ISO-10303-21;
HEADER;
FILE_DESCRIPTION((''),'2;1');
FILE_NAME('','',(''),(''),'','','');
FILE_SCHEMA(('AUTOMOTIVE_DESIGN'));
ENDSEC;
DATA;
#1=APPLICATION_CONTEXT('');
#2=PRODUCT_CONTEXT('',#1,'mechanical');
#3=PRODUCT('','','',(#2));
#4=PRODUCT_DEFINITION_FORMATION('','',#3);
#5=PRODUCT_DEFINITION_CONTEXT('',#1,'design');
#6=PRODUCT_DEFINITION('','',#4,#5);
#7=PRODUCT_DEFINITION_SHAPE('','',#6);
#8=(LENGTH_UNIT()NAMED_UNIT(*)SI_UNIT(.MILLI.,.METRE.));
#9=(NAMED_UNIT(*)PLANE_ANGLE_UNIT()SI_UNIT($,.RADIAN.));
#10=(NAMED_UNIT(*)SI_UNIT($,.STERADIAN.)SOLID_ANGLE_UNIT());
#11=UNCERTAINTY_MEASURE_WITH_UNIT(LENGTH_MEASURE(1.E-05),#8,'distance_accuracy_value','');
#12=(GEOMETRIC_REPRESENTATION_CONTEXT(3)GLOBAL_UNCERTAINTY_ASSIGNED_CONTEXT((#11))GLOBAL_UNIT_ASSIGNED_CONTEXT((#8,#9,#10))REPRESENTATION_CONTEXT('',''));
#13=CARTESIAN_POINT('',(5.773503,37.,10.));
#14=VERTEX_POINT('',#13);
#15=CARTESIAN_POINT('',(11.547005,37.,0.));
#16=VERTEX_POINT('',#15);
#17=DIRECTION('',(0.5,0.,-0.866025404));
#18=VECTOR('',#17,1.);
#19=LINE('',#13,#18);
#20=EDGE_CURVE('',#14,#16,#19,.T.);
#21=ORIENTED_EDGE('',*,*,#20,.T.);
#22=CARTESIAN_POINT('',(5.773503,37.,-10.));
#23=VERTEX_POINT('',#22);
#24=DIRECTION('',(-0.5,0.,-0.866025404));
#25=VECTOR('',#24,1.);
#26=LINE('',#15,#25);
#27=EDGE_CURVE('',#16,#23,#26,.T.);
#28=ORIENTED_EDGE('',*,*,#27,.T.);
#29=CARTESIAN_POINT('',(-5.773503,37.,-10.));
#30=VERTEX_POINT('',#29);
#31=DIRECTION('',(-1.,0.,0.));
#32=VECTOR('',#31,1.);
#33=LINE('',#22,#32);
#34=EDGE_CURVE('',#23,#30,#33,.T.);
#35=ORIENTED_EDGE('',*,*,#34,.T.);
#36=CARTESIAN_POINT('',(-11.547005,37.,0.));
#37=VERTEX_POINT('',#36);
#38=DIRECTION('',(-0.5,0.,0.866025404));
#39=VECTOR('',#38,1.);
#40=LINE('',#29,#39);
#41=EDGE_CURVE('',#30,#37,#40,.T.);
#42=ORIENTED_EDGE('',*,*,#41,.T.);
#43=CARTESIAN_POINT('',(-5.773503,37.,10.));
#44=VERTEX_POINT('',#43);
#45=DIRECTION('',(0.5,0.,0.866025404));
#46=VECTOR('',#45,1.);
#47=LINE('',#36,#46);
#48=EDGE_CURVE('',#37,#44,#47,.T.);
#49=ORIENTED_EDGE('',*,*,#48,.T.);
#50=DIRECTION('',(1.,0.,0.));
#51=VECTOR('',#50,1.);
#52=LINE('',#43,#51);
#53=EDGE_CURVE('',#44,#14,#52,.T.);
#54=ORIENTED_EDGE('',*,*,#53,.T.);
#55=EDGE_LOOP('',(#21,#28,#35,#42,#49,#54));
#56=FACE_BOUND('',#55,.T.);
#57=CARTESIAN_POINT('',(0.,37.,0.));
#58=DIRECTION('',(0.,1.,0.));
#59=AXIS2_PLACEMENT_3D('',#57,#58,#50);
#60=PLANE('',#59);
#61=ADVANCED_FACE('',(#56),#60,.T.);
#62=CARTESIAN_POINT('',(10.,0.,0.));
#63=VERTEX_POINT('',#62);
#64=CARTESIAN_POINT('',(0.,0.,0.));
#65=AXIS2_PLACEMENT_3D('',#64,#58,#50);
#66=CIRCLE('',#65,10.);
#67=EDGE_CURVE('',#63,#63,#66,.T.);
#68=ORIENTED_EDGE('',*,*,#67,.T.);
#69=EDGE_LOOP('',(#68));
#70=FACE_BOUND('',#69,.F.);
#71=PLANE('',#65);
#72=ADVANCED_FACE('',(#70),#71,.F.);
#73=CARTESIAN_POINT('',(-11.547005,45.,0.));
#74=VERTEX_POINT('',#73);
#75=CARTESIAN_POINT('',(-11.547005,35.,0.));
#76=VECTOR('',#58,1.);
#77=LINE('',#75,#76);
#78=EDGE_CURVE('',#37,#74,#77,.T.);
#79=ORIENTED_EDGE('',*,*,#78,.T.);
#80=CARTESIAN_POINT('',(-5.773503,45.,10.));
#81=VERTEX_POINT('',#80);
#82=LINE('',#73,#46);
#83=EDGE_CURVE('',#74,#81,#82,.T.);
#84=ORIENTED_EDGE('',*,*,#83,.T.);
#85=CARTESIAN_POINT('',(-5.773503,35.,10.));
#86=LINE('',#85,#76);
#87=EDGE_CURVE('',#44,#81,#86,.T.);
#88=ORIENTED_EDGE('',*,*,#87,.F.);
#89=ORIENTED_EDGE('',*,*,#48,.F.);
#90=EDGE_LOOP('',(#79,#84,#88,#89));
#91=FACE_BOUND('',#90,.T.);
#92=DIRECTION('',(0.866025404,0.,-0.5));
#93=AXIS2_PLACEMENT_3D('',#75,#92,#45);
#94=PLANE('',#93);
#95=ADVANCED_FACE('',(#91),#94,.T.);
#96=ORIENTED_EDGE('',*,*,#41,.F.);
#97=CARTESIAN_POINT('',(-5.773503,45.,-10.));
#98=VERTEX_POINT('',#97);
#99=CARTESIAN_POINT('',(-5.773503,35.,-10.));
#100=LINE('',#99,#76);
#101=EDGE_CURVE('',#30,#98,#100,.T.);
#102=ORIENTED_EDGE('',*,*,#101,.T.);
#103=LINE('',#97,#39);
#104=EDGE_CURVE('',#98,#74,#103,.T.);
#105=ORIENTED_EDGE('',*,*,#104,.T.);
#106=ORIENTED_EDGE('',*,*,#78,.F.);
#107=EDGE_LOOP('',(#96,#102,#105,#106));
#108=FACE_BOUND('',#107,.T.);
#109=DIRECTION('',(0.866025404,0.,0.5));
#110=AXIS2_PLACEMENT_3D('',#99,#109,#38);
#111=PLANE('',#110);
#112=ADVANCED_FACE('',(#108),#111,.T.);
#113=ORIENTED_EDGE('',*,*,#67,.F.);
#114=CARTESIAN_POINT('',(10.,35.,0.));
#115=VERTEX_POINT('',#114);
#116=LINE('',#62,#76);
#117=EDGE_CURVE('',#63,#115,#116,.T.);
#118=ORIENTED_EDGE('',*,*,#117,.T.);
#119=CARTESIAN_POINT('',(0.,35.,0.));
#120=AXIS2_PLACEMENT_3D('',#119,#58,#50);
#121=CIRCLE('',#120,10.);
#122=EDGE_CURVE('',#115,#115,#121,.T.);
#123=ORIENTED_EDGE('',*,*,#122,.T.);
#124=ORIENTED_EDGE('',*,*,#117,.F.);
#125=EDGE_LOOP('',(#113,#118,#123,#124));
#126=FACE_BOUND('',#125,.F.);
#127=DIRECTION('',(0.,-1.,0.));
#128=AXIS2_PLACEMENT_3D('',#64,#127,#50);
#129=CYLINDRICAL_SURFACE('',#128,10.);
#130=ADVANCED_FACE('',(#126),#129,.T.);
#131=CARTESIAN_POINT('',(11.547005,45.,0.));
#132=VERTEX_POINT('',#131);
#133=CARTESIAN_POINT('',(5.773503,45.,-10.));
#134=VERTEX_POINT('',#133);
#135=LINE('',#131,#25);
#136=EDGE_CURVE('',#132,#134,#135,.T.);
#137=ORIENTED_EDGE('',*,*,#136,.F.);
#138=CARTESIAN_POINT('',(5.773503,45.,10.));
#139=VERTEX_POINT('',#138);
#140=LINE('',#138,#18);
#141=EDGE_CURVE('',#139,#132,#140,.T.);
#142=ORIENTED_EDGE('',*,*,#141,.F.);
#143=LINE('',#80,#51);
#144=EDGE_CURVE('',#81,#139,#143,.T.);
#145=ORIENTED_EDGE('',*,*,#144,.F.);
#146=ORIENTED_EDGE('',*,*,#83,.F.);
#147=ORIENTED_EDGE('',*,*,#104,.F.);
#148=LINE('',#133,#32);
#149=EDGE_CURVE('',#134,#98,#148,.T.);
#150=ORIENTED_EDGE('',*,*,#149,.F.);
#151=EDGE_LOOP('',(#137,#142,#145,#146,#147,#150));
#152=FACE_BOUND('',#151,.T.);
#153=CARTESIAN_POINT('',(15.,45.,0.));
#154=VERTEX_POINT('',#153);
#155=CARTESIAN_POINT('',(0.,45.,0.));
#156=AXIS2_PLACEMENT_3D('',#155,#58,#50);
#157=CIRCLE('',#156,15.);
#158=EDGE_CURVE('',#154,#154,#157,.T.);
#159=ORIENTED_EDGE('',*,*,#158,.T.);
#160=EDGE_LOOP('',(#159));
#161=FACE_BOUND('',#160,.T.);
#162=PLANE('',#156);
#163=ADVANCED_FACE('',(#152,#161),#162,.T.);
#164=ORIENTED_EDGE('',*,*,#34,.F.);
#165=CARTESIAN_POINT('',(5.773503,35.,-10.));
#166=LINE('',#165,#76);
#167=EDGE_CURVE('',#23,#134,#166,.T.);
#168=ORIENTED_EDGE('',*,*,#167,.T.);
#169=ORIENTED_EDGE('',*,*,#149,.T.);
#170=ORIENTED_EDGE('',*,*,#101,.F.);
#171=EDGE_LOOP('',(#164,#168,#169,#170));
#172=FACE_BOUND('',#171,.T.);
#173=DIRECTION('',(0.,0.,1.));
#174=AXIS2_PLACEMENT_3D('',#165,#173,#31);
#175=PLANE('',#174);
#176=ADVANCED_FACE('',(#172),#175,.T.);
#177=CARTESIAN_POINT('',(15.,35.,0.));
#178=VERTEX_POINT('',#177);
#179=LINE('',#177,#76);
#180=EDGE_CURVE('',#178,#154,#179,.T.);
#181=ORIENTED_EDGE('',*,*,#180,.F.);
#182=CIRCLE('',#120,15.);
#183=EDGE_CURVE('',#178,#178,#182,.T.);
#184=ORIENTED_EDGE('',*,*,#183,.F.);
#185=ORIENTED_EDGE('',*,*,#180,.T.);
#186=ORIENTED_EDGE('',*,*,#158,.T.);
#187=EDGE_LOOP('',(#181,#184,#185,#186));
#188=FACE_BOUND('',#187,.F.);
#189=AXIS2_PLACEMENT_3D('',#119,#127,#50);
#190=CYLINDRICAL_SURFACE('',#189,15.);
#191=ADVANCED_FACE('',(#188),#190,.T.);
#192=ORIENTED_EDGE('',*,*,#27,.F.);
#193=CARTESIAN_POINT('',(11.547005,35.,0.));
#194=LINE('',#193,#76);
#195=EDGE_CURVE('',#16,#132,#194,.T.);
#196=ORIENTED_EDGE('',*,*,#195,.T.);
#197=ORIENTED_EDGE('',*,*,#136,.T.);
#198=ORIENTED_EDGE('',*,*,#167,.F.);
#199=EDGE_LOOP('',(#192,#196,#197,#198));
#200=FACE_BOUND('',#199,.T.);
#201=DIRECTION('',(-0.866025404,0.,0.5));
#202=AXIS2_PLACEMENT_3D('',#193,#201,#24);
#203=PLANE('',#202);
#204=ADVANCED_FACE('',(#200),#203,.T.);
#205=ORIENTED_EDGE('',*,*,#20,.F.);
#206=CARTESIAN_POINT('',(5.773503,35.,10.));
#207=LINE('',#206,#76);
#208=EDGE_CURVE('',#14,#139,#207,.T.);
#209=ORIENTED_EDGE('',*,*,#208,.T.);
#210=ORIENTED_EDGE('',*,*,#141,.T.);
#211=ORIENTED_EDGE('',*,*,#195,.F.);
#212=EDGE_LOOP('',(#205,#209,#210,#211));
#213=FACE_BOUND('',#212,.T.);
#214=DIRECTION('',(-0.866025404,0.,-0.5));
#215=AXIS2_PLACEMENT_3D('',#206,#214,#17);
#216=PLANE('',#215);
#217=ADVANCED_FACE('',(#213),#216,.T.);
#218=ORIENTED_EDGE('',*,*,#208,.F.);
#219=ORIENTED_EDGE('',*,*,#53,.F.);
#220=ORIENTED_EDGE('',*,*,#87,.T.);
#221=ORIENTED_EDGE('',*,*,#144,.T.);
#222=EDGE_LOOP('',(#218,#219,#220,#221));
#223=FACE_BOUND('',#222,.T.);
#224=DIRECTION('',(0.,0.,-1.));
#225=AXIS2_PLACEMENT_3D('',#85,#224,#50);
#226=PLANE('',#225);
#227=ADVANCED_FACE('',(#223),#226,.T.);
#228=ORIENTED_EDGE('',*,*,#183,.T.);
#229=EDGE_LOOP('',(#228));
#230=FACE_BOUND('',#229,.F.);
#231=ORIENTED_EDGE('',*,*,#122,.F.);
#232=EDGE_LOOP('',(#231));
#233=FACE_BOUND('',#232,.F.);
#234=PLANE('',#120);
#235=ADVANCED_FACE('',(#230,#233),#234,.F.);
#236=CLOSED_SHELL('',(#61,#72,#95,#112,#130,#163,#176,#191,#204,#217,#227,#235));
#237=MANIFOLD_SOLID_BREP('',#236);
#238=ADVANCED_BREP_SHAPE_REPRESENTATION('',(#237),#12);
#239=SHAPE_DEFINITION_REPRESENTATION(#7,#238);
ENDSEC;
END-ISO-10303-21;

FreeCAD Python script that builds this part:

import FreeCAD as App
import Part
import Sketcher
from FreeCAD import Vector
Q = App.Units.Quantity


def add_polygon(sketch, points):
    """Adds a closed chain of lines whose ends are joined by coincident constraints."""
    first, n = sketch.GeometryCount, len(points)
    for a, b in zip(points, points[1:] + points[:1]):
        sketch.addGeometry(Part.LineSegment(App.Vector(*a, 0), App.Vector(*b, 0)), False)
    for i in range(n):
        sketch.addConstraint(Sketcher.Constraint("Coincident", first + i, 2, first + (i + 1) % n, 1))

doc = App.newDocument("Part")
body = doc.addObject("PartDesign::Body", "Body")

# Sketch on XZ plane
sketch1 = doc.addObject("Sketcher::SketchObject", "Sketch")
body.addObject(sketch1)
sketch1.AttachmentSupport = (doc.XZ_Plane, [""])
sketch1.MapMode = "FlatFace"
sketch1.addGeometry(Part.Circle(Vector(0, 0, 0), Vector(0, 0, 1), 10), False)
sketch1.addConstraint([
    Sketcher.Constraint("Coincident", 0, 3, -1, 1),
    Sketcher.Constraint("Diameter", 0, 20.0),
])
pad1 = doc.addObject("PartDesign::Pad", "Pad")
body.addObject(pad1)
pad1.Profile = sketch1
pad1.Length = 35
pad1.Reversed = True
body2 = doc.addObject("PartDesign::Body", "Body001")

# Sketch on XZ plane
sketch2 = doc.addObject("Sketcher::SketchObject", "Sketch001")
body2.addObject(sketch2)
sketch2.AttachmentSupport = (doc.getObject("XZ_Plane001"), [""])
sketch2.MapMode = "FlatFace"
sketch2.AttachmentOffset = App.Placement(Vector(0, 0, -35), App.Rotation())
sketch2.addGeometry(Part.Circle(Vector(0, 0, 0), Vector(0, 0, 1), 15), False)  # 0
add_polygon(sketch2, [(5.773503, -10), (11.547005, 0), (5.773503, 10), (-5.773503, 10), (-11.547005, 0), (-5.773503, -10)])  # lines 1-6
sketch2.addConstraint([
    Sketcher.Constraint("Horizontal", 3),
    Sketcher.Constraint("Horizontal", 6),
    Sketcher.Constraint("Coincident", 0, 3, -1, 1),
    Sketcher.Constraint("Symmetric", 1, 2, 4, 2, -1, 1),
    Sketcher.Constraint("Symmetric", 2, 2, 5, 2, -1, 1),
    Sketcher.Constraint("PointOnObject", 1, 2, -1),
    Sketcher.Constraint("Parallel", 1, 4),
    Sketcher.Constraint("Vertical", 3, 2, 5, 2),
    Sketcher.Constraint("Diameter", 0, 30.0),
    Sketcher.Constraint("Angle", 1, Q("60 deg")),
    Sketcher.Constraint("DistanceY", -1, 1, 2, 2, 10.0),
    Sketcher.Constraint("DistanceX", 3, 2, 3, 1, 11.547005),
])
pad2 = doc.addObject("PartDesign::Pad", "Pad001")
body2.addObject(pad2)
pad2.Profile = sketch2
pad2.Length = 10
pad2.Reversed = True
body.AllowCompound = True
doc.recompute()

boolean = doc.addObject("PartDesign::Boolean", "Boolean")
body.addObject(boolean)
boolean.Type = "Fuse"
boolean.addObjects([body2])

# Sketch on XZ plane
sketch3 = doc.addObject("Sketcher::SketchObject", "Sketch002")
body.addObject(sketch3)
sketch3.AttachmentSupport = (doc.XZ_Plane, [""])
sketch3.MapMode = "FlatFace"
sketch3.AttachmentOffset = App.Placement(Vector(0, 0, -35), App.Rotation())
add_polygon(sketch3, [(11.547005, 0), (5.773503, -10), (-5.773503, -10), (-11.547005, 0), (-5.773503, 10), (5.773503, 10)])  # lines 0-5
sketch3.addConstraint([
    Sketcher.Constraint("Horizontal", 1),
    Sketcher.Constraint("Horizontal", 4),
    Sketcher.Constraint("Symmetric", 0, 2, 3, 2, -1, 1),
    Sketcher.Constraint("Symmetric", 2, 2, 5, 2, -1, 1),
    Sketcher.Constraint("PointOnObject", 2, 2, -1),
    Sketcher.Constraint("Parallel", 2, 5),
    Sketcher.Constraint("Vertical", 1, 2, 3, 2),
    Sketcher.Constraint("Angle", 0, Q("-120 deg")),
    Sketcher.Constraint("DistanceY", 0, 2, -1, 1, 10.0),
    Sketcher.Constraint("DistanceX", 1, 2, 1, 1, 11.547005),
])
pad3 = doc.addObject("PartDesign::Pad", "Pad002")
body.addObject(pad3)
pad3.Profile = sketch3
pad3.Length = 2
pad3.Reversed = True

doc.recompute()
